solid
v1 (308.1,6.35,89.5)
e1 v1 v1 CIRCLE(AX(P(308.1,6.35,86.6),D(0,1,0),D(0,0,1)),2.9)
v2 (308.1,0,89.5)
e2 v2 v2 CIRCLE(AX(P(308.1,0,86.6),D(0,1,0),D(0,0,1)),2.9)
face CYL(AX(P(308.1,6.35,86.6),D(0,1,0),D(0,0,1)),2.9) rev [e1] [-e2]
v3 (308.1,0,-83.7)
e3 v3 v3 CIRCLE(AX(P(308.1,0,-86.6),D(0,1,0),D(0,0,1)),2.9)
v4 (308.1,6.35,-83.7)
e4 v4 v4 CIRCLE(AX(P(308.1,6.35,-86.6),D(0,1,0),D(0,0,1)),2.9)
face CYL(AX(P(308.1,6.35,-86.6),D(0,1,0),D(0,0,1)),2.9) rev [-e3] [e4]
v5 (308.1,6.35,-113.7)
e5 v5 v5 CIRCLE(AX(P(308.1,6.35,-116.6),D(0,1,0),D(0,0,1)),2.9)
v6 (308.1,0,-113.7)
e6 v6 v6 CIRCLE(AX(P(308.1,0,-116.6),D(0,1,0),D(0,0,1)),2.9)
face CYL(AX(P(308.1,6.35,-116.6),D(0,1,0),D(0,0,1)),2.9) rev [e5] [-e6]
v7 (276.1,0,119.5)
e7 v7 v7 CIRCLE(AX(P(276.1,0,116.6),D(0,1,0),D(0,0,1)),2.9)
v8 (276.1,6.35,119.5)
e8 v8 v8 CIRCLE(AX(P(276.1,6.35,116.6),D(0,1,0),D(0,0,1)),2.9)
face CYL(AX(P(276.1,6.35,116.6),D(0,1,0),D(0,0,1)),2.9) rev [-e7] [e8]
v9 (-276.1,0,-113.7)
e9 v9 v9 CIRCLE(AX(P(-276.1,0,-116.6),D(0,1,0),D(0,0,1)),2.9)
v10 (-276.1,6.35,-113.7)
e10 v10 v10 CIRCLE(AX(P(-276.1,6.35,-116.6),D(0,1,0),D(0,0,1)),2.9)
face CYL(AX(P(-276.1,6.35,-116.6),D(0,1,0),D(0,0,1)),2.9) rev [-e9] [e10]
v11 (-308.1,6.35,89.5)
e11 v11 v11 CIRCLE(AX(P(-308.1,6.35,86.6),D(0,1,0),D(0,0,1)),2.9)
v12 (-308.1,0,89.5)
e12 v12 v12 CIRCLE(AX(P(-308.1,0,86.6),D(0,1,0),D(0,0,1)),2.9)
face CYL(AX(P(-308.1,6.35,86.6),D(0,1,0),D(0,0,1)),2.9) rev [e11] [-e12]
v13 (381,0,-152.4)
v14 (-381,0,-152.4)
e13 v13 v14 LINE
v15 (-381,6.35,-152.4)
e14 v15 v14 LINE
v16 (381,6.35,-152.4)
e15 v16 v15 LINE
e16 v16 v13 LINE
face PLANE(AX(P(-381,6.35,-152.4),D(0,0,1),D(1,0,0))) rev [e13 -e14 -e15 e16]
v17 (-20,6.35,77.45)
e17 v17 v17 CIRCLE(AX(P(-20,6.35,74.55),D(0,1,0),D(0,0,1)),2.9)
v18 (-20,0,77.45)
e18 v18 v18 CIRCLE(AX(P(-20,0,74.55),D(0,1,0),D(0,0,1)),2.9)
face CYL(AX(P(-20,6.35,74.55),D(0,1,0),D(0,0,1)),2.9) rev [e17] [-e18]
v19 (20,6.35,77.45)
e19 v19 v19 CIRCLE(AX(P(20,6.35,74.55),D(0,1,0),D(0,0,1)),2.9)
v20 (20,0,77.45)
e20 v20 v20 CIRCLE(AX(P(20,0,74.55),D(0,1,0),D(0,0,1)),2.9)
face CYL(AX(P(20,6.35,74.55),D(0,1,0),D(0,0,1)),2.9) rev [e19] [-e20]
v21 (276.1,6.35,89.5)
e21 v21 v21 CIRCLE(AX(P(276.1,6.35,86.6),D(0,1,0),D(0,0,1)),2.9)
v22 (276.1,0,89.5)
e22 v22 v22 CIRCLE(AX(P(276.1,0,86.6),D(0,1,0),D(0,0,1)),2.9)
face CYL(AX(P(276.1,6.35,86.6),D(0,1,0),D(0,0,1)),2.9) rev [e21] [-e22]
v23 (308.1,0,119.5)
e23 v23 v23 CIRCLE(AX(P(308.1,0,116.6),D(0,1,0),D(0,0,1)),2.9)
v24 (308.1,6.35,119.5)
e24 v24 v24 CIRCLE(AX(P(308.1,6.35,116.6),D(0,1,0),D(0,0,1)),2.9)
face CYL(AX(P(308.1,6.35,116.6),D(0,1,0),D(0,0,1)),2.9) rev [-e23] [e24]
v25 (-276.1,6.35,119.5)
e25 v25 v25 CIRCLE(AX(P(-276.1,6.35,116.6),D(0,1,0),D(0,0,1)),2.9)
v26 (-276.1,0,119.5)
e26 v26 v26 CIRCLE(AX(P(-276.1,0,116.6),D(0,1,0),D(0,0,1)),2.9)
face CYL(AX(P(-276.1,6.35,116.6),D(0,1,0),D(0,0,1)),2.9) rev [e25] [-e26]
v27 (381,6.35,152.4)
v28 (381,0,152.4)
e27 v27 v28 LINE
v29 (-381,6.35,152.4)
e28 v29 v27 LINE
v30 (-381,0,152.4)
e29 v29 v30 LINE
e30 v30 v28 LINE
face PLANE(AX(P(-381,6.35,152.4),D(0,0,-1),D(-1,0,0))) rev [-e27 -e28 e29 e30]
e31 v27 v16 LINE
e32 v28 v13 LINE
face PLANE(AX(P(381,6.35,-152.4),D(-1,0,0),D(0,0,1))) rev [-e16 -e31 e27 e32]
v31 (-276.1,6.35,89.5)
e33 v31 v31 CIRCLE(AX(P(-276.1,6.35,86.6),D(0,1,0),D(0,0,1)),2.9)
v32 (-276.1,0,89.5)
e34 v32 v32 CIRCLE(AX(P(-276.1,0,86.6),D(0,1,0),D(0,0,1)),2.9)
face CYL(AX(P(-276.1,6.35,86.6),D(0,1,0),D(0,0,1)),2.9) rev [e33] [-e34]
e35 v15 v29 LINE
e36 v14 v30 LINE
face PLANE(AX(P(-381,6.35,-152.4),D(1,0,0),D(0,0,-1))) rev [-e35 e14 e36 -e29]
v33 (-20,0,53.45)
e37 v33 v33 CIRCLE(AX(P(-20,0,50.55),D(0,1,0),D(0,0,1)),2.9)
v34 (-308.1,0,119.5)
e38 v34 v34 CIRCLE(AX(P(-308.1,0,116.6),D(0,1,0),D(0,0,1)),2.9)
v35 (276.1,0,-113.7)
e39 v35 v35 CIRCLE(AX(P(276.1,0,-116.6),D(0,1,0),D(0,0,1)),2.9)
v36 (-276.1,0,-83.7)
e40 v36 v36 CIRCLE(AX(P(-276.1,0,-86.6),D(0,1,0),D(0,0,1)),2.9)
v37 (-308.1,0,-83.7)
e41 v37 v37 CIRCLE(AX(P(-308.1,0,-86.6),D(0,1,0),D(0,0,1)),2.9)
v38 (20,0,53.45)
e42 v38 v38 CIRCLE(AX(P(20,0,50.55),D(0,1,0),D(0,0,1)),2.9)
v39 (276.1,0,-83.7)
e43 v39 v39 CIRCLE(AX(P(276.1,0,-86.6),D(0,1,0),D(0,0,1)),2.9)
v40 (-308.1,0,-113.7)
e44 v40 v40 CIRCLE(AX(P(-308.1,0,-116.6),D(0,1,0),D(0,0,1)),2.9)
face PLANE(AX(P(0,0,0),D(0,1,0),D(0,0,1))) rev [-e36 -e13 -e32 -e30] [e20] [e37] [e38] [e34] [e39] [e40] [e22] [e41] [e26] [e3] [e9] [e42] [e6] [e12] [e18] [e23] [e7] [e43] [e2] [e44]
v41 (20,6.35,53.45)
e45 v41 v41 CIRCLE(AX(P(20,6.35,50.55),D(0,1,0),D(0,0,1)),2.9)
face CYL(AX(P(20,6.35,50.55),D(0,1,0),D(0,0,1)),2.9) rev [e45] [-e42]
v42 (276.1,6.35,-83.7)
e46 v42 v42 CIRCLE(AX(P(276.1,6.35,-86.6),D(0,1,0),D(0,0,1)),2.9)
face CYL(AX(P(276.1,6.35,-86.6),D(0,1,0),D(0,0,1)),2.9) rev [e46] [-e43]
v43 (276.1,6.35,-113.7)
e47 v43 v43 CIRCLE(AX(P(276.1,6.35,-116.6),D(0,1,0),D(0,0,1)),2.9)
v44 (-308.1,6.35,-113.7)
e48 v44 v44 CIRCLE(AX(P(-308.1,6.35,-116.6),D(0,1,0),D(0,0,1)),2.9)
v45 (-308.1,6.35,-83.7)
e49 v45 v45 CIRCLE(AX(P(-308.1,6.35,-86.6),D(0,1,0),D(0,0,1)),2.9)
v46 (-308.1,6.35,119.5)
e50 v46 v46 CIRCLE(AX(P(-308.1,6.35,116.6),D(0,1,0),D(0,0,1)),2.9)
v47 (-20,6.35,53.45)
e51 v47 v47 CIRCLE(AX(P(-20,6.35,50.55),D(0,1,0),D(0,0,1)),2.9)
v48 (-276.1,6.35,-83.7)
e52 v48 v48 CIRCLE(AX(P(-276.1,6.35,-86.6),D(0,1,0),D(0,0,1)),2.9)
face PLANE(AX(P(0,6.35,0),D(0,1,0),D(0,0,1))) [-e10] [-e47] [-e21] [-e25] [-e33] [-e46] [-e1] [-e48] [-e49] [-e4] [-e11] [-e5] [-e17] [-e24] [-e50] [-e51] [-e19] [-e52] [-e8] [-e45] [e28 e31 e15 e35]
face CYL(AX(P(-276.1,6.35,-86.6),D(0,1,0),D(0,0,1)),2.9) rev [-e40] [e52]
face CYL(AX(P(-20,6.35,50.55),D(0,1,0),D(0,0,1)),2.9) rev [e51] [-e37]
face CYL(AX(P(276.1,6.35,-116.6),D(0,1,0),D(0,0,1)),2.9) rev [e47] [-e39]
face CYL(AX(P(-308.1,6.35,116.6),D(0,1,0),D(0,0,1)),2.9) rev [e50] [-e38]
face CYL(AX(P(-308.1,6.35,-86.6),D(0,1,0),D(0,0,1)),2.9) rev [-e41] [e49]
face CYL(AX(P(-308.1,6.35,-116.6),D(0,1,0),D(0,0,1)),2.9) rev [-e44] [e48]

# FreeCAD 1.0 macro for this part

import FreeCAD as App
import Part
import Sketcher
Q = App.Units.Quantity

doc = App.newDocument("Part")
body = doc.addObject("PartDesign::Body", "Body")

sketch1 = body.newObject("Sketcher::SketchObject", "Sketch")
sketch1.AttachmentSupport = (doc.getObject("XZ_Plane"), [""])
sketch1.MapMode = "FlatFace"
sketch1.addGeometry(Part.LineSegment(App.Vector(-381, -152.4, 0), App.Vector(-381, 152.4, 0)), False)
sketch1.addGeometry(Part.LineSegment(App.Vector(-381, 152.4, 0), App.Vector(381, 152.4, 0)), False)
sketch1.addGeometry(Part.LineSegment(App.Vector(381, 152.4, 0), App.Vector(381, -152.4, 0)), False)
sketch1.addGeometry(Part.LineSegment(App.Vector(381, -152.4, 0), App.Vector(-381, -152.4, 0)), False)
sketch1.addConstraint(Sketcher.Constraint("Coincident", 0, 2, 1, 1))
sketch1.addConstraint(Sketcher.Constraint("Coincident", 1, 2, 2, 1))
sketch1.addConstraint(Sketcher.Constraint("Coincident", 2, 2, 3, 1))
sketch1.addConstraint(Sketcher.Constraint("Coincident", 3, 2, 0, 1))
sketch1.addConstraint(Sketcher.Constraint("Vertical", 0))
sketch1.addConstraint(Sketcher.Constraint("Horizontal", 1))
sketch1.addConstraint(Sketcher.Constraint("Vertical", 2))
sketch1.addConstraint(Sketcher.Constraint("Horizontal", 3))
sketch1.addConstraint(Sketcher.Constraint("Symmetric", 0, 2, 2, 2, -1, 1))
sketch1.addConstraint(Sketcher.Constraint("DistanceX", 1, 1, 1, 2, Q("30 in")))
sketch1.addConstraint(Sketcher.Constraint("DistanceY", 0, 1, 0, 2, Q("12 in")))
pad1 = body.newObject("PartDesign::Pad", "Pad")
pad1.Profile = sketch1
pad1.Length = Q("0.25 in")
pad1.Reversed = True

sketch2 = body.newObject("Sketcher::SketchObject", "Sketch001")
sketch2.AttachmentSupport = (doc.getObject("XZ_Plane"), [""])
sketch2.MapMode = "FlatFace"
sketch2.AttachmentOffset = App.Placement(App.Vector(0, 0, -0.25 * 25.4), App.Rotation())
sketch2.addGeometry(Part.Circle(App.Vector(276.1, -116.6, 0), App.Vector(0, 0, 1), 2.9), False)
sketch2.addGeometry(Part.Circle(App.Vector(276.1, -86.6, 0), App.Vector(0, 0, 1), 2.9), False)
sketch2.addGeometry(Part.Circle(App.Vector(308.1, -116.6, 0), App.Vector(0, 0, 1), 2.9), False)
sketch2.addGeometry(Part.Circle(App.Vector(308.1, -86.6, 0), App.Vector(0, 0, 1), 2.9), False)
sketch2.addGeometry(Part.Circle(App.Vector(276.1, 86.6, 0), App.Vector(0, 0, 1), 2.9), False)
sketch2.addGeometry(Part.Circle(App.Vector(276.1, 116.6, 0), App.Vector(0, 0, 1), 2.9), False)
sketch2.addGeometry(Part.Circle(App.Vector(308.1, 86.6, 0), App.Vector(0, 0, 1), 2.9), False)
sketch2.addGeometry(Part.Circle(App.Vector(308.1, 116.6, 0), App.Vector(0, 0, 1), 2.9), False)
sketch2.addGeometry(Part.Circle(App.Vector(-308.1, -116.6, 0), App.Vector(0, 0, 1), 2.9), False)
sketch2.addGeometry(Part.Circle(App.Vector(-308.1, -86.6, 0), App.Vector(0, 0, 1), 2.9), False)
sketch2.addGeometry(Part.Circle(App.Vector(-276.1, -116.6, 0), App.Vector(0, 0, 1), 2.9), False)
sketch2.addGeometry(Part.Circle(App.Vector(-276.1, -86.6, 0), App.Vector(0, 0, 1), 2.9), False)
sketch2.addGeometry(Part.Circle(App.Vector(-276.1, 86.6, 0), App.Vector(0, 0, 1), 2.9), False)
sketch2.addGeometry(Part.Circle(App.Vector(-276.1, 116.6, 0), App.Vector(0, 0, 1), 2.9), False)
sketch2.addGeometry(Part.Circle(App.Vector(-308.1, 116.6, 0), App.Vector(0, 0, 1), 2.9), False)
sketch2.addGeometry(Part.Circle(App.Vector(-308.1, 86.6, 0), App.Vector(0, 0, 1), 2.9), False)
sketch2.addGeometry(Part.Circle(App.Vector(20, 50.55, 0), App.Vector(0, 0, 1), 2.9), False)
sketch2.addGeometry(Part.Circle(App.Vector(20, 74.55, 0), App.Vector(0, 0, 1), 2.9), False)
sketch2.addGeometry(Part.Circle(App.Vector(-20, 74.55, 0), App.Vector(0, 0, 1), 2.9), False)
sketch2.addGeometry(Part.Circle(App.Vector(-20, 50.55, 0), App.Vector(0, 0, 1), 2.9), False)
sketch2.addConstraint(Sketcher.Constraint("Equal", 0, 1))
sketch2.addConstraint(Sketcher.Constraint("Equal", 1, 2))
sketch2.addConstraint(Sketcher.Constraint("Equal", 2, 3))
sketch2.addConstraint(Sketcher.Constraint("Equal", 3, 4))
sketch2.addConstraint(Sketcher.Constraint("Equal", 4, 5))
sketch2.addConstraint(Sketcher.Constraint("Equal", 5, 6))
sketch2.addConstraint(Sketcher.Constraint("Equal", 6, 7))
sketch2.addConstraint(Sketcher.Constraint("Equal", 7, 8))
sketch2.addConstraint(Sketcher.Constraint("Equal", 8, 9))
sketch2.addConstraint(Sketcher.Constraint("Equal", 9, 10))
sketch2.addConstraint(Sketcher.Constraint("Equal", 10, 11))
sketch2.addConstraint(Sketcher.Constraint("Equal", 11, 12))
sketch2.addConstraint(Sketcher.Constraint("Equal", 12, 13))
sketch2.addConstraint(Sketcher.Constraint("Equal", 13, 14))
sketch2.addConstraint(Sketcher.Constraint("Equal", 14, 15))
sketch2.addConstraint(Sketcher.Constraint("Equal", 15, 16))
sketch2.addConstraint(Sketcher.Constraint("Equal", 16, 17))
sketch2.addConstraint(Sketcher.Constraint("Equal", 17, 18))
sketch2.addConstraint(Sketcher.Constraint("Equal", 18, 19))
sketch2.addConstraint(Sketcher.Constraint("Symmetric", 7, 3, 8, 3, -1, 1))
sketch2.addConstraint(Sketcher.Constraint("Symmetric", 6, 3, 9, 3, -1, 1))
sketch2.addConstraint(Sketcher.Constraint("Symmetric", 5, 3, 10, 3, -1, 1))
sketch2.addConstraint(Sketcher.Constraint("Symmetric", 4, 3, 11, 3, -1, 1))
sketch2.addConstraint(Sketcher.Constraint("Symmetric", 1, 3, 12, 3, -1, 1))
sketch2.addConstraint(Sketcher.Constraint("Symmetric", 0, 3, 13, 3, -1, 1))
sketch2.addConstraint(Sketcher.Constraint("Symmetric", 2, 3, 14, 3, -1, 1))
sketch2.addConstraint(Sketcher.Constraint("Symmetric", 3, 3, 15, 3, -1, 1))
sketch2.addConstraint(Sketcher.Constraint("Symmetric", 2, 3, 8, 3, -2))
sketch2.addConstraint(Sketcher.Constraint("Symmetric", 3, 3, 9, 3, -2))
sketch2.addConstraint(Sketcher.Constraint("Symmetric", 0, 3, 10, 3, -2))
sketch2.addConstraint(Sketcher.Constraint("Symmetric", 1, 3, 11, 3, -2))
sketch2.addConstraint(Sketcher.Constraint("Symmetric", 17, 3, 18, 3, -2))
sketch2.addConstraint(Sketcher.Constraint("Symmetric", 16, 3, 19, 3, -2))
sketch2.addConstraint(Sketcher.Constraint("Horizontal", 0, 3, 2, 3))
sketch2.addConstraint(Sketcher.Constraint("Horizontal", 1, 3, 3, 3))
sketch2.addConstraint(Sketcher.Constraint("Vertical", 0, 3, 1, 3))
sketch2.addConstraint(Sketcher.Constraint("Vertical", 2, 3, 3, 3))
sketch2.addConstraint(Sketcher.Constraint("Vertical", 16, 3, 17, 3))
sketch2.addConstraint(Sketcher.Constraint("DistanceY", 0, 3, 4, 3, Q("8 in")))
sketch2.addConstraint(Sketcher.Constraint("DistanceX", 8, 3, 0, 3, Q("23 in")))
sketch2.addConstraint(Sketcher.Constraint("Diameter", 0, 5.8))
sketch2.addConstraint(Sketcher.Constraint("DistanceX", -1, 1, 0, 3, 276.1))
sketch2.addConstraint(Sketcher.Constraint("DistanceY", 0, 3, -1, 1, 116.6))
sketch2.addConstraint(Sketcher.Constraint("DistanceX", -1, 1, 16, 3, 20.0))
sketch2.addConstraint(Sketcher.Constraint("DistanceY", -1, 1, 16, 3, 50.55))
sketch2.addConstraint(Sketcher.Constraint("DistanceY", -1, 1, 17, 3, 74.55))
doc.recompute()
hole = body.newObject("PartDesign::Hole", "Hole")
hole.Profile = sketch2
hole.ThreadType = "None"
hole.Diameter = 5.8
hole.DepthType = "Dimension"
hole.Depth = Q("0.25 in")
hole.DrillPoint = "Flat"
hole.Reversed = True

doc.recompute()
